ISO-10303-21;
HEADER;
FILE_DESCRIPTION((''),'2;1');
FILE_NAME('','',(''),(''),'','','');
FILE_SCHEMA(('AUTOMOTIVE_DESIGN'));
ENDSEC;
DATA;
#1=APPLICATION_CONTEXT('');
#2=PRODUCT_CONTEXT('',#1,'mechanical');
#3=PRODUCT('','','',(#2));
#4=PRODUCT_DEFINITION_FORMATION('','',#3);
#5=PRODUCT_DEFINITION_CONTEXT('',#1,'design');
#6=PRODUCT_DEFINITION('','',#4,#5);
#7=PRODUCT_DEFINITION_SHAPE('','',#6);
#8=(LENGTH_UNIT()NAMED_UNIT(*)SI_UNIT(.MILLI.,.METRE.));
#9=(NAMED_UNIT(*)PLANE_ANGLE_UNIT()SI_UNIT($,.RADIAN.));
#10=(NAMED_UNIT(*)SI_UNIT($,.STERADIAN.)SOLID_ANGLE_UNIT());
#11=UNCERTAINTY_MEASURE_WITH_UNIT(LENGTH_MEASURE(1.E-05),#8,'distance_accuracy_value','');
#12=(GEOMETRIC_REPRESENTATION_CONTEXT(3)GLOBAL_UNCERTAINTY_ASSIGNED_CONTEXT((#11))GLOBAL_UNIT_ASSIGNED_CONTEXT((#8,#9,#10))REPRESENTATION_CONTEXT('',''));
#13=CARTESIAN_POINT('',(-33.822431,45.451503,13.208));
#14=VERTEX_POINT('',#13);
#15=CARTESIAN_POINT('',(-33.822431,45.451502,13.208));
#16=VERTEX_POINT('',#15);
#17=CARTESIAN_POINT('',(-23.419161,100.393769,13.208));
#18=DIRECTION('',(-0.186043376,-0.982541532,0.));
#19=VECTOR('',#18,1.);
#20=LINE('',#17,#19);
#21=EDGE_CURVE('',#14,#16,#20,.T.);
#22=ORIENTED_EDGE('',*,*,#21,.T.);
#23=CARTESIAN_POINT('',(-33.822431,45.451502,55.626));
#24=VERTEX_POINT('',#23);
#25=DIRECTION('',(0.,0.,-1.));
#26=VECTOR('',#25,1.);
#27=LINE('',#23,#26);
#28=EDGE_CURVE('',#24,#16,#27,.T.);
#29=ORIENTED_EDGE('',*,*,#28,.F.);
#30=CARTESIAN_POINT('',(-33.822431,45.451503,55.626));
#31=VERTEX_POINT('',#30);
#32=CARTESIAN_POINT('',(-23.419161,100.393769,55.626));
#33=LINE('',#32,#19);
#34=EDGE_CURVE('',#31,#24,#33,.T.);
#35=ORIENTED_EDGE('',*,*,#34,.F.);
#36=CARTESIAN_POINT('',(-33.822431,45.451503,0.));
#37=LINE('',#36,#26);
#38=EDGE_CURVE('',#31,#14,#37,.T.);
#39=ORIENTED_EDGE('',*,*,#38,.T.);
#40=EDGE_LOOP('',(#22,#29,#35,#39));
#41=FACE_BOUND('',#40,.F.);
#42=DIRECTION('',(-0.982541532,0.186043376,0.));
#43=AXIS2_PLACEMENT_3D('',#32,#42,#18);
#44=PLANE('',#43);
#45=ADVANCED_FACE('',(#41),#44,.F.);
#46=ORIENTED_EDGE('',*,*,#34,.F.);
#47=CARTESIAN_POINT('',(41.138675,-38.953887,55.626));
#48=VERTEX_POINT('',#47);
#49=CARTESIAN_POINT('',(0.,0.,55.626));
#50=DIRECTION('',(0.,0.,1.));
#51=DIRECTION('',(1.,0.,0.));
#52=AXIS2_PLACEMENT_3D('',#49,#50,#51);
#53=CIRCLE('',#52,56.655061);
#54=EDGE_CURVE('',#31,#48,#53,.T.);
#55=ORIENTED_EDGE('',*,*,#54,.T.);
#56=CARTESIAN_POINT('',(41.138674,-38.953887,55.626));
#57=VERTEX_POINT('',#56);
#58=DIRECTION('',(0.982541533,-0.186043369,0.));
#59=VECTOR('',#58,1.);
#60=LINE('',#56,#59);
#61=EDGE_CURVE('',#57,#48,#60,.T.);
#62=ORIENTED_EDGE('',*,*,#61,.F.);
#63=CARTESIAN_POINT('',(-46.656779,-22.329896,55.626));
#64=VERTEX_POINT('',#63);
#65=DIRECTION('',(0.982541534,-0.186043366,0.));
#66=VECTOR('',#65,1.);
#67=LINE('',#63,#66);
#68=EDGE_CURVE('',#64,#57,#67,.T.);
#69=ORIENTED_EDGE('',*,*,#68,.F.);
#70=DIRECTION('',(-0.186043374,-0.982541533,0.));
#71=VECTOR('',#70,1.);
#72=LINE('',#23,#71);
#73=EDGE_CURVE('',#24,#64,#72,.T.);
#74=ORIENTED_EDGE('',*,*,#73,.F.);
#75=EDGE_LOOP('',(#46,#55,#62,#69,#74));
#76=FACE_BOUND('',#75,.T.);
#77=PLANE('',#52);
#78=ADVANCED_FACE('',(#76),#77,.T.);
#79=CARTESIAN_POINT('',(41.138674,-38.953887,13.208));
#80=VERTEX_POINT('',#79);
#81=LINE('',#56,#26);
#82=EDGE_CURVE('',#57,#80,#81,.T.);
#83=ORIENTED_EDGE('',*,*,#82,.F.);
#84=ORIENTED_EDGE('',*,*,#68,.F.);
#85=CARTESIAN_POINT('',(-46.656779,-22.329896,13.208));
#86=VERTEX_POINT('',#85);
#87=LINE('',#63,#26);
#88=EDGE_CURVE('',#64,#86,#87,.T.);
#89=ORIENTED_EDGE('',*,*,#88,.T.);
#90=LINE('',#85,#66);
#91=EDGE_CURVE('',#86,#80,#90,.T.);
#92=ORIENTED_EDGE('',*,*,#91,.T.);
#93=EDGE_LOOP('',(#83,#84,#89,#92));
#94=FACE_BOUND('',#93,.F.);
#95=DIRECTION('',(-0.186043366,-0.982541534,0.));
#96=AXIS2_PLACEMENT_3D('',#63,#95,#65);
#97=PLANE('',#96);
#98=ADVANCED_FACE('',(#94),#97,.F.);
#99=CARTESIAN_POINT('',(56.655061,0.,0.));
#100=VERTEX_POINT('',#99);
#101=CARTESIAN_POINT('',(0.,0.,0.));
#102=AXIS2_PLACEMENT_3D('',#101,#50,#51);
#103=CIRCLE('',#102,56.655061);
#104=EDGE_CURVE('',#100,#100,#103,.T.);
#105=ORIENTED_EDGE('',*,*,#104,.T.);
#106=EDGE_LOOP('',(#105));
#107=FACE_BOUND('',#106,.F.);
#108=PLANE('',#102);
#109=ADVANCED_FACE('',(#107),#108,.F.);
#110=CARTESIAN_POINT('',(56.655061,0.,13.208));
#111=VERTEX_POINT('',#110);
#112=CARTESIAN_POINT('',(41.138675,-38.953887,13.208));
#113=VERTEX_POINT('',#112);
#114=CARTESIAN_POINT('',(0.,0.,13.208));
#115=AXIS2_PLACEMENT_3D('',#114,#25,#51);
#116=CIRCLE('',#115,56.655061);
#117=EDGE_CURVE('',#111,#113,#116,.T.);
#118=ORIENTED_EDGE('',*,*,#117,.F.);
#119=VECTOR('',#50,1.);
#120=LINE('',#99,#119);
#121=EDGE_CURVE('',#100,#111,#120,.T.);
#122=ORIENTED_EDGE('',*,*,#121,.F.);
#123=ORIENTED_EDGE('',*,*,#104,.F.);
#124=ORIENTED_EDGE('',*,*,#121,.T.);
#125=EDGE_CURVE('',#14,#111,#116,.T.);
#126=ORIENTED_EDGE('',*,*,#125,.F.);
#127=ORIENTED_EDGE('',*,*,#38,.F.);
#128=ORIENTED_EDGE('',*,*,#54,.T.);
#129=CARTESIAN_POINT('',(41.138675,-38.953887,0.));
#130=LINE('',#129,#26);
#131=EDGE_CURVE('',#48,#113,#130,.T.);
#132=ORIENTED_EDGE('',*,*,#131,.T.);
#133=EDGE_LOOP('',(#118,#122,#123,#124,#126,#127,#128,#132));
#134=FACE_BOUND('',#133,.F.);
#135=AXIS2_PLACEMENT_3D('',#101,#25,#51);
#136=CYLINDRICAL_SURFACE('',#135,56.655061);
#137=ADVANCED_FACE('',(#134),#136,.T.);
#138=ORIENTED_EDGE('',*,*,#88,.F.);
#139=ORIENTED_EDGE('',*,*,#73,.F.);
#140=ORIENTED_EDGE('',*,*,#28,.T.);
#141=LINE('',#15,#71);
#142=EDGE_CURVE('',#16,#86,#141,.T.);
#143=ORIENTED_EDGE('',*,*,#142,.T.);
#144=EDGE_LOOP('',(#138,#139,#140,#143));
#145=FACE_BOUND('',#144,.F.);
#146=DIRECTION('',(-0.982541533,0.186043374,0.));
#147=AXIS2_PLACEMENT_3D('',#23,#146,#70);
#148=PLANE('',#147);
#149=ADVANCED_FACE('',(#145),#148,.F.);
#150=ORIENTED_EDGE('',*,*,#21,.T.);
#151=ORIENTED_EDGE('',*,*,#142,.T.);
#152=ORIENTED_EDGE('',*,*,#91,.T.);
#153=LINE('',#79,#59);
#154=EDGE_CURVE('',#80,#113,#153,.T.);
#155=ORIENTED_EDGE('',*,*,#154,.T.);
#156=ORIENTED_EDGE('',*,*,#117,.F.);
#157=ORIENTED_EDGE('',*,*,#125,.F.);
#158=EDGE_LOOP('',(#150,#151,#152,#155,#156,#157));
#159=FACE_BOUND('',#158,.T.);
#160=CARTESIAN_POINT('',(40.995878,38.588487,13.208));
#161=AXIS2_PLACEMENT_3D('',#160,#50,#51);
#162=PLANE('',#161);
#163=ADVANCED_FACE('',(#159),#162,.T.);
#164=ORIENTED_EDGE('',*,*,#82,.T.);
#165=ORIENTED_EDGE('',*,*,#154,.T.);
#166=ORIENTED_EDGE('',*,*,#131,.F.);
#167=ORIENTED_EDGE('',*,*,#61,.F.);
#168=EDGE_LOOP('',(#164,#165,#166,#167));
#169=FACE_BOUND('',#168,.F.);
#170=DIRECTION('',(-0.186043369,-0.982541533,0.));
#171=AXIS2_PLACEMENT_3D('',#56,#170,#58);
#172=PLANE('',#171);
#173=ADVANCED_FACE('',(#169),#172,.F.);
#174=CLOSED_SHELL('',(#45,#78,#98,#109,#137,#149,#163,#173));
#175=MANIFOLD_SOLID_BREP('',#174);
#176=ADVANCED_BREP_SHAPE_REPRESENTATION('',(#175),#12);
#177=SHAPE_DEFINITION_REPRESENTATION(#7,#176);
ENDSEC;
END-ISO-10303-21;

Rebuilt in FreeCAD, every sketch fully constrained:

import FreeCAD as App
import Part
import Sketcher
from FreeCAD import Vector
Q = App.Units.Quantity

doc = App.newDocument("Part")
body = doc.addObject("PartDesign::Body", "Body")

# Sketch on XY plane
sketch1 = body.newObject("Sketcher::SketchObject", "Sketch")
sketch1.AttachmentSupport = (doc.getObject("XY_Plane"), [""])
sketch1.MapMode = "FlatFace"
sketch1.addGeometry(Part.Circle(Vector(0, 0, 0), Vector(0, 0, 1), 57), False)
sketch1.addConstraint(Sketcher.Constraint("Coincident", 0, 3, -1, 1))
sketch1.addConstraint(Sketcher.Constraint("Diameter", 0, Q("113.310122 mm")))
pad1 = body.newObject("PartDesign::Pad", "Pad")
pad1.Profile = sketch1
pad1.Length = Q("2.19 in")

# Sketch on XY plane
sketch2 = body.newObject("Sketcher::SketchObject", "Sketch001")
sketch2.AttachmentSupport = (doc.getObject("XY_Plane"), [""])
sketch2.MapMode = "FlatFace"
sketch2.AttachmentOffset = App.Placement(Vector(0, 0, 2.19 * 25.4), App.Rotation())
sketch2.addGeometry(Part.LineSegment(Vector(41.138674, -38.953887, 0), Vector(76.066886, -45.567513, 0)), False)
sketch2.addGeometry(Part.LineSegment(Vector(76.066886, -45.567513, 0), Vector(99.304504, 77.156152, 0)), False)
sketch2.addGeometry(Part.LineSegment(Vector(99.304504, 77.156152, 0), Vector(-23.419161, 100.393769, 0)), False)
sketch2.addGeometry(Part.LineSegment(Vector(-23.419161, 100.393769, 0), Vector(-33.822431, 45.451502, 0)), False)
sketch2.addGeometry(Part.LineSegment(Vector(-33.822431, 45.451502, 0), Vector(-46.656779, -22.329896, 0)), False)
sketch2.addGeometry(Part.LineSegment(Vector(-46.656779, -22.329896, 0), Vector(41.138674, -38.953887, 0)), False)
sketch2.addConstraint(Sketcher.Constraint("Coincident", 0, 2, 1, 1))
sketch2.addConstraint(Sketcher.Constraint("Coincident", 1, 2, 2, 1))
sketch2.addConstraint(Sketcher.Constraint("Coincident", 2, 2, 3, 1))
sketch2.addConstraint(Sketcher.Constraint("Coincident", 3, 2, 4, 1))
sketch2.addConstraint(Sketcher.Constraint("Coincident", 4, 2, 5, 1))
sketch2.addConstraint(Sketcher.Constraint("Coincident", 5, 2, 0, 1))
sketch2.addConstraint(Sketcher.Constraint("DistanceY", -1, 1, 3, 2, Q("45.451502 mm")))
sketch2.addConstraint(Sketcher.Constraint("Distance", 0, Q("35.54884 mm")))
sketch2.addConstraint(Sketcher.Constraint("Distance", 3, Q("55.918519 mm")))
sketch2.addConstraint(Sketcher.Constraint("DistanceX", 2, 2, -1, 1, Q("23.419161 mm")))
sketch2.addConstraint(Sketcher.Constraint("DistanceY", -1, 1, 2, 2, Q("100.393769 mm")))
sketch2.addConstraint(Sketcher.Constraint("DistanceX", 4, 2, -1, 1, Q("46.656779 mm")))
sketch2.addConstraint(Sketcher.Constraint("DistanceY", 3, 2, 1, 2, Q("31.70465 mm")))
sketch2.addConstraint(Sketcher.Constraint("DistanceY", 4, 2, 1, 2, Q("99.486048 mm")))
sketch2.addConstraint(Sketcher.Constraint("DistanceX", 5, 2, 0, 2, Q("34.928212 mm")))
sketch2.addConstraint(Sketcher.Constraint("DistanceY", 5, 2, 4, 2, Q("16.623991 mm")))
sketch2.addConstraint(Sketcher.Constraint("DistanceX", 5, 2, 1, 2, Q("58.16583 mm")))
sketch2.addConstraint(Sketcher.Constraint("Distance", 2, Q("124.904303 mm")))
pocket1 = body.newObject("PartDesign::Pocket", "Pocket")
pocket1.Profile = sketch2
pocket1.Length = Q("1.67 in")

doc.recompute()
